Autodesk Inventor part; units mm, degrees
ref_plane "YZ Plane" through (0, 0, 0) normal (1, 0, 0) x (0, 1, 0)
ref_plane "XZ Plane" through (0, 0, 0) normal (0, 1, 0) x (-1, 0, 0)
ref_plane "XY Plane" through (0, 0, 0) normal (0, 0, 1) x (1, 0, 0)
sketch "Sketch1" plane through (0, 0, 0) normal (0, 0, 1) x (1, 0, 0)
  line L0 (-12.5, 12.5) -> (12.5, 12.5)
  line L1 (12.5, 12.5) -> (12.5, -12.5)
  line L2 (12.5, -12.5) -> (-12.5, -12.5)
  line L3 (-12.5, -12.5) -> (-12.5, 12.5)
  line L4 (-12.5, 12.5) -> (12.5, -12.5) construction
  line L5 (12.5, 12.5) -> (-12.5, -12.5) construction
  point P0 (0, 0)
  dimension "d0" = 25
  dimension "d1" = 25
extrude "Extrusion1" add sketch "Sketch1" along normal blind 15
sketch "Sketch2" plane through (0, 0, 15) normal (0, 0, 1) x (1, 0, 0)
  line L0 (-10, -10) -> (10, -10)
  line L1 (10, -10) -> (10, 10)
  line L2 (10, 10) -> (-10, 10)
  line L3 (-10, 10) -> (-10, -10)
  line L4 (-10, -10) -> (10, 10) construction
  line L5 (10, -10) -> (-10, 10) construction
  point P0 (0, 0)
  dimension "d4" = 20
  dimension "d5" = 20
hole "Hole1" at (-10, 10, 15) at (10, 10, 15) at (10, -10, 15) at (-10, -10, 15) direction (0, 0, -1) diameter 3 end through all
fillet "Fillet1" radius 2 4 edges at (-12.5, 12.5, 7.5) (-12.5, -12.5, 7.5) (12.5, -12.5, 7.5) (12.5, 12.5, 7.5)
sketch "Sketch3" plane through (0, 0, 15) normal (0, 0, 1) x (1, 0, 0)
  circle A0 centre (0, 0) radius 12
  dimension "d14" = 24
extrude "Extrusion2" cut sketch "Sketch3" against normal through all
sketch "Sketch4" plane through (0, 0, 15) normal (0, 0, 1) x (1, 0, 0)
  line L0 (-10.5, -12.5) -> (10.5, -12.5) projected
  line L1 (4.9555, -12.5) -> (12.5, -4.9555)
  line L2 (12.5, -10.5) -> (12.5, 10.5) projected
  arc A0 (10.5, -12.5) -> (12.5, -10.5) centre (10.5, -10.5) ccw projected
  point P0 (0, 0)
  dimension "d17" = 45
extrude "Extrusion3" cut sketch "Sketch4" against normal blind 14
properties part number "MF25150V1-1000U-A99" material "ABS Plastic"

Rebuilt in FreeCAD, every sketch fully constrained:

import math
import FreeCAD as App
import Part
import Sketcher
from FreeCAD import Vector


def edges_at(feature, points):
    """Names of the edges that pass closest to the given points."""
    edges = feature.Shape.Edges
    near = lambda p: min(range(len(edges)), key=lambda i: edges[i].distToShape(Part.Vertex(*p))[0])
    return sorted({f"Edge{near(p) + 1}" for p in points})


def add_polygon(sketch, points):
    """Adds a closed chain of lines whose ends are joined by coincident constraints."""
    first, n = sketch.GeometryCount, len(points)
    for a, b in zip(points, points[1:] + points[:1]):
        sketch.addGeometry(Part.LineSegment(App.Vector(*a, 0), App.Vector(*b, 0)), False)
    for i in range(n):
        sketch.addConstraint(Sketcher.Constraint("Coincident", first + i, 2, first + (i + 1) % n, 1))

doc = App.newDocument("Part")
body = doc.addObject("PartDesign::Body", "Body")

sketch1 = body.newObject("Sketcher::SketchObject", "Sketch")
sketch1.AttachmentSupport = (doc.getObject("XY_Plane"), [""])
sketch1.MapMode = "FlatFace"
add_polygon(sketch1, [(12.5, 12.5), (-12.5, 12.5), (-12.5, -12.5), (12.5, -12.5)])
sketch1.addConstraint([
    Sketcher.Constraint("Horizontal", 0),
    Sketcher.Constraint("Vertical", 1),
    Sketcher.Constraint("Horizontal", 2),
    Sketcher.Constraint("Vertical", 3),
    Sketcher.Constraint("Symmetric", 0, 2, 2, 2, -1, 1),
    Sketcher.Constraint("Equal", 2, 1),
    Sketcher.Constraint("DistanceX", 0, 2, 0, 1, 25.0),
])
pad1 = body.newObject("PartDesign::Pad", "Pad")
pad1.Profile = sketch1
pad1.Length = 15

sketch2 = body.newObject("Sketcher::SketchObject", "Sketch001")
sketch2.AttachmentSupport = (doc.getObject("XY_Plane"), [""])
sketch2.MapMode = "FlatFace"
sketch2.AttachmentOffset = App.Placement(Vector(0, 0, 15), App.Rotation())
sketch2.addGeometry([
    Part.Circle(Vector(-10, 10, 0), Vector(0, 0, 1), 1.5),
    Part.Circle(Vector(10, 10, 0), Vector(0, 0, 1), 1.5),
    Part.Circle(Vector(10, -10, 0), Vector(0, 0, 1), 1.5),
    Part.Circle(Vector(-10, -10, 0), Vector(0, 0, 1), 1.5),
], False)
sketch2.addConstraint([
    Sketcher.Constraint("Equal", 0, 1),
    Sketcher.Constraint("Equal", 1, 2),
    Sketcher.Constraint("Equal", 2, 3),
    Sketcher.Constraint("Symmetric", 0, 3, 2, 3, -1, 1),
    Sketcher.Constraint("Symmetric", 1, 3, 3, 3, -1, 1),
    Sketcher.Constraint("Symmetric", 0, 3, 1, 3, -2),
    Sketcher.Constraint("Diameter", 0, 3.0),
    Sketcher.Constraint("DistanceX", 0, 3, -1, 1, 10.0),
    Sketcher.Constraint("DistanceY", -1, 1, 0, 3, 10.0),
])
doc.recompute()
hole = body.newObject("PartDesign::Hole", "Hole")
hole.Profile = sketch2
hole.ThreadType = "None"
hole.Diameter = 3
hole.DepthType = "ThroughAll"
doc.recompute()

fillet = body.newObject("PartDesign::Fillet", "Fillet")
fillet.Base = (hole, edges_at(hole, [
    (-12.5, 12.5, 7.5),
    (-12.5, -12.5, 7.5),
    (12.5, -12.5, 7.5),
    (12.5, 12.5, 7.5),
]))
fillet.Radius = 2

sketch3 = body.newObject("Sketcher::SketchObject", "Sketch002")
sketch3.AttachmentSupport = (doc.getObject("XY_Plane"), [""])
sketch3.MapMode = "FlatFace"
sketch3.AttachmentOffset = App.Placement(Vector(0, 0, 15), App.Rotation())
sketch3.addGeometry(Part.Circle(Vector(0, 0, 0), Vector(0, 0, 1), 12), False)
sketch3.addConstraint([
    Sketcher.Constraint("Coincident", 0, 3, -1, 1),
    Sketcher.Constraint("Diameter", 0, 24.0),
])
pocket1 = body.newObject("PartDesign::Pocket", "Pocket")
pocket1.Profile = sketch3
pocket1.Type = "ThroughAll"

sketch4 = body.newObject("Sketcher::SketchObject", "Sketch003")
sketch4.AttachmentSupport = (doc.getObject("XY_Plane"), [""])
sketch4.MapMode = "FlatFace"
sketch4.AttachmentOffset = App.Placement(Vector(0, 0, 15), App.Rotation())
sketch4.addGeometry([
    Part.LineSegment(Vector(12.5, -4.9555, 0), Vector(4.9555, -12.5, 0)),
    Part.LineSegment(Vector(4.9555, -12.5, 0), Vector(10.5, -12.5, 0)),
    Part.ArcOfCircle(Part.Circle(Vector(10.5, -10.5, 0), Vector(0, 0, 1), 2), math.radians(-90), math.radians(0)),
    Part.LineSegment(Vector(12.5, -10.5, 0), Vector(12.5, -4.9555, 0)),
], False)
sketch4.addConstraint([
    Sketcher.Constraint("Coincident", 0, 2, 1, 1),
    Sketcher.Constraint("Tangent", 1, 2, 2, 1),
    Sketcher.Constraint("Tangent", 2, 2, 3, 1),
    Sketcher.Constraint("Coincident", 3, 2, 0, 1),
    Sketcher.Constraint("Horizontal", 1),
    Sketcher.Constraint("Vertical", 3),
    Sketcher.Constraint("Equal", 1, 3),
    Sketcher.Constraint("Radius", 2, 2.0),
    Sketcher.Constraint("DistanceX", -1, 1, 2, 3, 10.5),
    Sketcher.Constraint("DistanceY", 2, 3, -1, 1, 10.5),
    Sketcher.Constraint("DistanceX", 1, 1, 1, 2, 5.5445),
])
pocket2 = body.newObject("PartDesign::Pocket", "Pocket001")
pocket2.Profile = sketch4
pocket2.Length = 14

doc.recompute()
